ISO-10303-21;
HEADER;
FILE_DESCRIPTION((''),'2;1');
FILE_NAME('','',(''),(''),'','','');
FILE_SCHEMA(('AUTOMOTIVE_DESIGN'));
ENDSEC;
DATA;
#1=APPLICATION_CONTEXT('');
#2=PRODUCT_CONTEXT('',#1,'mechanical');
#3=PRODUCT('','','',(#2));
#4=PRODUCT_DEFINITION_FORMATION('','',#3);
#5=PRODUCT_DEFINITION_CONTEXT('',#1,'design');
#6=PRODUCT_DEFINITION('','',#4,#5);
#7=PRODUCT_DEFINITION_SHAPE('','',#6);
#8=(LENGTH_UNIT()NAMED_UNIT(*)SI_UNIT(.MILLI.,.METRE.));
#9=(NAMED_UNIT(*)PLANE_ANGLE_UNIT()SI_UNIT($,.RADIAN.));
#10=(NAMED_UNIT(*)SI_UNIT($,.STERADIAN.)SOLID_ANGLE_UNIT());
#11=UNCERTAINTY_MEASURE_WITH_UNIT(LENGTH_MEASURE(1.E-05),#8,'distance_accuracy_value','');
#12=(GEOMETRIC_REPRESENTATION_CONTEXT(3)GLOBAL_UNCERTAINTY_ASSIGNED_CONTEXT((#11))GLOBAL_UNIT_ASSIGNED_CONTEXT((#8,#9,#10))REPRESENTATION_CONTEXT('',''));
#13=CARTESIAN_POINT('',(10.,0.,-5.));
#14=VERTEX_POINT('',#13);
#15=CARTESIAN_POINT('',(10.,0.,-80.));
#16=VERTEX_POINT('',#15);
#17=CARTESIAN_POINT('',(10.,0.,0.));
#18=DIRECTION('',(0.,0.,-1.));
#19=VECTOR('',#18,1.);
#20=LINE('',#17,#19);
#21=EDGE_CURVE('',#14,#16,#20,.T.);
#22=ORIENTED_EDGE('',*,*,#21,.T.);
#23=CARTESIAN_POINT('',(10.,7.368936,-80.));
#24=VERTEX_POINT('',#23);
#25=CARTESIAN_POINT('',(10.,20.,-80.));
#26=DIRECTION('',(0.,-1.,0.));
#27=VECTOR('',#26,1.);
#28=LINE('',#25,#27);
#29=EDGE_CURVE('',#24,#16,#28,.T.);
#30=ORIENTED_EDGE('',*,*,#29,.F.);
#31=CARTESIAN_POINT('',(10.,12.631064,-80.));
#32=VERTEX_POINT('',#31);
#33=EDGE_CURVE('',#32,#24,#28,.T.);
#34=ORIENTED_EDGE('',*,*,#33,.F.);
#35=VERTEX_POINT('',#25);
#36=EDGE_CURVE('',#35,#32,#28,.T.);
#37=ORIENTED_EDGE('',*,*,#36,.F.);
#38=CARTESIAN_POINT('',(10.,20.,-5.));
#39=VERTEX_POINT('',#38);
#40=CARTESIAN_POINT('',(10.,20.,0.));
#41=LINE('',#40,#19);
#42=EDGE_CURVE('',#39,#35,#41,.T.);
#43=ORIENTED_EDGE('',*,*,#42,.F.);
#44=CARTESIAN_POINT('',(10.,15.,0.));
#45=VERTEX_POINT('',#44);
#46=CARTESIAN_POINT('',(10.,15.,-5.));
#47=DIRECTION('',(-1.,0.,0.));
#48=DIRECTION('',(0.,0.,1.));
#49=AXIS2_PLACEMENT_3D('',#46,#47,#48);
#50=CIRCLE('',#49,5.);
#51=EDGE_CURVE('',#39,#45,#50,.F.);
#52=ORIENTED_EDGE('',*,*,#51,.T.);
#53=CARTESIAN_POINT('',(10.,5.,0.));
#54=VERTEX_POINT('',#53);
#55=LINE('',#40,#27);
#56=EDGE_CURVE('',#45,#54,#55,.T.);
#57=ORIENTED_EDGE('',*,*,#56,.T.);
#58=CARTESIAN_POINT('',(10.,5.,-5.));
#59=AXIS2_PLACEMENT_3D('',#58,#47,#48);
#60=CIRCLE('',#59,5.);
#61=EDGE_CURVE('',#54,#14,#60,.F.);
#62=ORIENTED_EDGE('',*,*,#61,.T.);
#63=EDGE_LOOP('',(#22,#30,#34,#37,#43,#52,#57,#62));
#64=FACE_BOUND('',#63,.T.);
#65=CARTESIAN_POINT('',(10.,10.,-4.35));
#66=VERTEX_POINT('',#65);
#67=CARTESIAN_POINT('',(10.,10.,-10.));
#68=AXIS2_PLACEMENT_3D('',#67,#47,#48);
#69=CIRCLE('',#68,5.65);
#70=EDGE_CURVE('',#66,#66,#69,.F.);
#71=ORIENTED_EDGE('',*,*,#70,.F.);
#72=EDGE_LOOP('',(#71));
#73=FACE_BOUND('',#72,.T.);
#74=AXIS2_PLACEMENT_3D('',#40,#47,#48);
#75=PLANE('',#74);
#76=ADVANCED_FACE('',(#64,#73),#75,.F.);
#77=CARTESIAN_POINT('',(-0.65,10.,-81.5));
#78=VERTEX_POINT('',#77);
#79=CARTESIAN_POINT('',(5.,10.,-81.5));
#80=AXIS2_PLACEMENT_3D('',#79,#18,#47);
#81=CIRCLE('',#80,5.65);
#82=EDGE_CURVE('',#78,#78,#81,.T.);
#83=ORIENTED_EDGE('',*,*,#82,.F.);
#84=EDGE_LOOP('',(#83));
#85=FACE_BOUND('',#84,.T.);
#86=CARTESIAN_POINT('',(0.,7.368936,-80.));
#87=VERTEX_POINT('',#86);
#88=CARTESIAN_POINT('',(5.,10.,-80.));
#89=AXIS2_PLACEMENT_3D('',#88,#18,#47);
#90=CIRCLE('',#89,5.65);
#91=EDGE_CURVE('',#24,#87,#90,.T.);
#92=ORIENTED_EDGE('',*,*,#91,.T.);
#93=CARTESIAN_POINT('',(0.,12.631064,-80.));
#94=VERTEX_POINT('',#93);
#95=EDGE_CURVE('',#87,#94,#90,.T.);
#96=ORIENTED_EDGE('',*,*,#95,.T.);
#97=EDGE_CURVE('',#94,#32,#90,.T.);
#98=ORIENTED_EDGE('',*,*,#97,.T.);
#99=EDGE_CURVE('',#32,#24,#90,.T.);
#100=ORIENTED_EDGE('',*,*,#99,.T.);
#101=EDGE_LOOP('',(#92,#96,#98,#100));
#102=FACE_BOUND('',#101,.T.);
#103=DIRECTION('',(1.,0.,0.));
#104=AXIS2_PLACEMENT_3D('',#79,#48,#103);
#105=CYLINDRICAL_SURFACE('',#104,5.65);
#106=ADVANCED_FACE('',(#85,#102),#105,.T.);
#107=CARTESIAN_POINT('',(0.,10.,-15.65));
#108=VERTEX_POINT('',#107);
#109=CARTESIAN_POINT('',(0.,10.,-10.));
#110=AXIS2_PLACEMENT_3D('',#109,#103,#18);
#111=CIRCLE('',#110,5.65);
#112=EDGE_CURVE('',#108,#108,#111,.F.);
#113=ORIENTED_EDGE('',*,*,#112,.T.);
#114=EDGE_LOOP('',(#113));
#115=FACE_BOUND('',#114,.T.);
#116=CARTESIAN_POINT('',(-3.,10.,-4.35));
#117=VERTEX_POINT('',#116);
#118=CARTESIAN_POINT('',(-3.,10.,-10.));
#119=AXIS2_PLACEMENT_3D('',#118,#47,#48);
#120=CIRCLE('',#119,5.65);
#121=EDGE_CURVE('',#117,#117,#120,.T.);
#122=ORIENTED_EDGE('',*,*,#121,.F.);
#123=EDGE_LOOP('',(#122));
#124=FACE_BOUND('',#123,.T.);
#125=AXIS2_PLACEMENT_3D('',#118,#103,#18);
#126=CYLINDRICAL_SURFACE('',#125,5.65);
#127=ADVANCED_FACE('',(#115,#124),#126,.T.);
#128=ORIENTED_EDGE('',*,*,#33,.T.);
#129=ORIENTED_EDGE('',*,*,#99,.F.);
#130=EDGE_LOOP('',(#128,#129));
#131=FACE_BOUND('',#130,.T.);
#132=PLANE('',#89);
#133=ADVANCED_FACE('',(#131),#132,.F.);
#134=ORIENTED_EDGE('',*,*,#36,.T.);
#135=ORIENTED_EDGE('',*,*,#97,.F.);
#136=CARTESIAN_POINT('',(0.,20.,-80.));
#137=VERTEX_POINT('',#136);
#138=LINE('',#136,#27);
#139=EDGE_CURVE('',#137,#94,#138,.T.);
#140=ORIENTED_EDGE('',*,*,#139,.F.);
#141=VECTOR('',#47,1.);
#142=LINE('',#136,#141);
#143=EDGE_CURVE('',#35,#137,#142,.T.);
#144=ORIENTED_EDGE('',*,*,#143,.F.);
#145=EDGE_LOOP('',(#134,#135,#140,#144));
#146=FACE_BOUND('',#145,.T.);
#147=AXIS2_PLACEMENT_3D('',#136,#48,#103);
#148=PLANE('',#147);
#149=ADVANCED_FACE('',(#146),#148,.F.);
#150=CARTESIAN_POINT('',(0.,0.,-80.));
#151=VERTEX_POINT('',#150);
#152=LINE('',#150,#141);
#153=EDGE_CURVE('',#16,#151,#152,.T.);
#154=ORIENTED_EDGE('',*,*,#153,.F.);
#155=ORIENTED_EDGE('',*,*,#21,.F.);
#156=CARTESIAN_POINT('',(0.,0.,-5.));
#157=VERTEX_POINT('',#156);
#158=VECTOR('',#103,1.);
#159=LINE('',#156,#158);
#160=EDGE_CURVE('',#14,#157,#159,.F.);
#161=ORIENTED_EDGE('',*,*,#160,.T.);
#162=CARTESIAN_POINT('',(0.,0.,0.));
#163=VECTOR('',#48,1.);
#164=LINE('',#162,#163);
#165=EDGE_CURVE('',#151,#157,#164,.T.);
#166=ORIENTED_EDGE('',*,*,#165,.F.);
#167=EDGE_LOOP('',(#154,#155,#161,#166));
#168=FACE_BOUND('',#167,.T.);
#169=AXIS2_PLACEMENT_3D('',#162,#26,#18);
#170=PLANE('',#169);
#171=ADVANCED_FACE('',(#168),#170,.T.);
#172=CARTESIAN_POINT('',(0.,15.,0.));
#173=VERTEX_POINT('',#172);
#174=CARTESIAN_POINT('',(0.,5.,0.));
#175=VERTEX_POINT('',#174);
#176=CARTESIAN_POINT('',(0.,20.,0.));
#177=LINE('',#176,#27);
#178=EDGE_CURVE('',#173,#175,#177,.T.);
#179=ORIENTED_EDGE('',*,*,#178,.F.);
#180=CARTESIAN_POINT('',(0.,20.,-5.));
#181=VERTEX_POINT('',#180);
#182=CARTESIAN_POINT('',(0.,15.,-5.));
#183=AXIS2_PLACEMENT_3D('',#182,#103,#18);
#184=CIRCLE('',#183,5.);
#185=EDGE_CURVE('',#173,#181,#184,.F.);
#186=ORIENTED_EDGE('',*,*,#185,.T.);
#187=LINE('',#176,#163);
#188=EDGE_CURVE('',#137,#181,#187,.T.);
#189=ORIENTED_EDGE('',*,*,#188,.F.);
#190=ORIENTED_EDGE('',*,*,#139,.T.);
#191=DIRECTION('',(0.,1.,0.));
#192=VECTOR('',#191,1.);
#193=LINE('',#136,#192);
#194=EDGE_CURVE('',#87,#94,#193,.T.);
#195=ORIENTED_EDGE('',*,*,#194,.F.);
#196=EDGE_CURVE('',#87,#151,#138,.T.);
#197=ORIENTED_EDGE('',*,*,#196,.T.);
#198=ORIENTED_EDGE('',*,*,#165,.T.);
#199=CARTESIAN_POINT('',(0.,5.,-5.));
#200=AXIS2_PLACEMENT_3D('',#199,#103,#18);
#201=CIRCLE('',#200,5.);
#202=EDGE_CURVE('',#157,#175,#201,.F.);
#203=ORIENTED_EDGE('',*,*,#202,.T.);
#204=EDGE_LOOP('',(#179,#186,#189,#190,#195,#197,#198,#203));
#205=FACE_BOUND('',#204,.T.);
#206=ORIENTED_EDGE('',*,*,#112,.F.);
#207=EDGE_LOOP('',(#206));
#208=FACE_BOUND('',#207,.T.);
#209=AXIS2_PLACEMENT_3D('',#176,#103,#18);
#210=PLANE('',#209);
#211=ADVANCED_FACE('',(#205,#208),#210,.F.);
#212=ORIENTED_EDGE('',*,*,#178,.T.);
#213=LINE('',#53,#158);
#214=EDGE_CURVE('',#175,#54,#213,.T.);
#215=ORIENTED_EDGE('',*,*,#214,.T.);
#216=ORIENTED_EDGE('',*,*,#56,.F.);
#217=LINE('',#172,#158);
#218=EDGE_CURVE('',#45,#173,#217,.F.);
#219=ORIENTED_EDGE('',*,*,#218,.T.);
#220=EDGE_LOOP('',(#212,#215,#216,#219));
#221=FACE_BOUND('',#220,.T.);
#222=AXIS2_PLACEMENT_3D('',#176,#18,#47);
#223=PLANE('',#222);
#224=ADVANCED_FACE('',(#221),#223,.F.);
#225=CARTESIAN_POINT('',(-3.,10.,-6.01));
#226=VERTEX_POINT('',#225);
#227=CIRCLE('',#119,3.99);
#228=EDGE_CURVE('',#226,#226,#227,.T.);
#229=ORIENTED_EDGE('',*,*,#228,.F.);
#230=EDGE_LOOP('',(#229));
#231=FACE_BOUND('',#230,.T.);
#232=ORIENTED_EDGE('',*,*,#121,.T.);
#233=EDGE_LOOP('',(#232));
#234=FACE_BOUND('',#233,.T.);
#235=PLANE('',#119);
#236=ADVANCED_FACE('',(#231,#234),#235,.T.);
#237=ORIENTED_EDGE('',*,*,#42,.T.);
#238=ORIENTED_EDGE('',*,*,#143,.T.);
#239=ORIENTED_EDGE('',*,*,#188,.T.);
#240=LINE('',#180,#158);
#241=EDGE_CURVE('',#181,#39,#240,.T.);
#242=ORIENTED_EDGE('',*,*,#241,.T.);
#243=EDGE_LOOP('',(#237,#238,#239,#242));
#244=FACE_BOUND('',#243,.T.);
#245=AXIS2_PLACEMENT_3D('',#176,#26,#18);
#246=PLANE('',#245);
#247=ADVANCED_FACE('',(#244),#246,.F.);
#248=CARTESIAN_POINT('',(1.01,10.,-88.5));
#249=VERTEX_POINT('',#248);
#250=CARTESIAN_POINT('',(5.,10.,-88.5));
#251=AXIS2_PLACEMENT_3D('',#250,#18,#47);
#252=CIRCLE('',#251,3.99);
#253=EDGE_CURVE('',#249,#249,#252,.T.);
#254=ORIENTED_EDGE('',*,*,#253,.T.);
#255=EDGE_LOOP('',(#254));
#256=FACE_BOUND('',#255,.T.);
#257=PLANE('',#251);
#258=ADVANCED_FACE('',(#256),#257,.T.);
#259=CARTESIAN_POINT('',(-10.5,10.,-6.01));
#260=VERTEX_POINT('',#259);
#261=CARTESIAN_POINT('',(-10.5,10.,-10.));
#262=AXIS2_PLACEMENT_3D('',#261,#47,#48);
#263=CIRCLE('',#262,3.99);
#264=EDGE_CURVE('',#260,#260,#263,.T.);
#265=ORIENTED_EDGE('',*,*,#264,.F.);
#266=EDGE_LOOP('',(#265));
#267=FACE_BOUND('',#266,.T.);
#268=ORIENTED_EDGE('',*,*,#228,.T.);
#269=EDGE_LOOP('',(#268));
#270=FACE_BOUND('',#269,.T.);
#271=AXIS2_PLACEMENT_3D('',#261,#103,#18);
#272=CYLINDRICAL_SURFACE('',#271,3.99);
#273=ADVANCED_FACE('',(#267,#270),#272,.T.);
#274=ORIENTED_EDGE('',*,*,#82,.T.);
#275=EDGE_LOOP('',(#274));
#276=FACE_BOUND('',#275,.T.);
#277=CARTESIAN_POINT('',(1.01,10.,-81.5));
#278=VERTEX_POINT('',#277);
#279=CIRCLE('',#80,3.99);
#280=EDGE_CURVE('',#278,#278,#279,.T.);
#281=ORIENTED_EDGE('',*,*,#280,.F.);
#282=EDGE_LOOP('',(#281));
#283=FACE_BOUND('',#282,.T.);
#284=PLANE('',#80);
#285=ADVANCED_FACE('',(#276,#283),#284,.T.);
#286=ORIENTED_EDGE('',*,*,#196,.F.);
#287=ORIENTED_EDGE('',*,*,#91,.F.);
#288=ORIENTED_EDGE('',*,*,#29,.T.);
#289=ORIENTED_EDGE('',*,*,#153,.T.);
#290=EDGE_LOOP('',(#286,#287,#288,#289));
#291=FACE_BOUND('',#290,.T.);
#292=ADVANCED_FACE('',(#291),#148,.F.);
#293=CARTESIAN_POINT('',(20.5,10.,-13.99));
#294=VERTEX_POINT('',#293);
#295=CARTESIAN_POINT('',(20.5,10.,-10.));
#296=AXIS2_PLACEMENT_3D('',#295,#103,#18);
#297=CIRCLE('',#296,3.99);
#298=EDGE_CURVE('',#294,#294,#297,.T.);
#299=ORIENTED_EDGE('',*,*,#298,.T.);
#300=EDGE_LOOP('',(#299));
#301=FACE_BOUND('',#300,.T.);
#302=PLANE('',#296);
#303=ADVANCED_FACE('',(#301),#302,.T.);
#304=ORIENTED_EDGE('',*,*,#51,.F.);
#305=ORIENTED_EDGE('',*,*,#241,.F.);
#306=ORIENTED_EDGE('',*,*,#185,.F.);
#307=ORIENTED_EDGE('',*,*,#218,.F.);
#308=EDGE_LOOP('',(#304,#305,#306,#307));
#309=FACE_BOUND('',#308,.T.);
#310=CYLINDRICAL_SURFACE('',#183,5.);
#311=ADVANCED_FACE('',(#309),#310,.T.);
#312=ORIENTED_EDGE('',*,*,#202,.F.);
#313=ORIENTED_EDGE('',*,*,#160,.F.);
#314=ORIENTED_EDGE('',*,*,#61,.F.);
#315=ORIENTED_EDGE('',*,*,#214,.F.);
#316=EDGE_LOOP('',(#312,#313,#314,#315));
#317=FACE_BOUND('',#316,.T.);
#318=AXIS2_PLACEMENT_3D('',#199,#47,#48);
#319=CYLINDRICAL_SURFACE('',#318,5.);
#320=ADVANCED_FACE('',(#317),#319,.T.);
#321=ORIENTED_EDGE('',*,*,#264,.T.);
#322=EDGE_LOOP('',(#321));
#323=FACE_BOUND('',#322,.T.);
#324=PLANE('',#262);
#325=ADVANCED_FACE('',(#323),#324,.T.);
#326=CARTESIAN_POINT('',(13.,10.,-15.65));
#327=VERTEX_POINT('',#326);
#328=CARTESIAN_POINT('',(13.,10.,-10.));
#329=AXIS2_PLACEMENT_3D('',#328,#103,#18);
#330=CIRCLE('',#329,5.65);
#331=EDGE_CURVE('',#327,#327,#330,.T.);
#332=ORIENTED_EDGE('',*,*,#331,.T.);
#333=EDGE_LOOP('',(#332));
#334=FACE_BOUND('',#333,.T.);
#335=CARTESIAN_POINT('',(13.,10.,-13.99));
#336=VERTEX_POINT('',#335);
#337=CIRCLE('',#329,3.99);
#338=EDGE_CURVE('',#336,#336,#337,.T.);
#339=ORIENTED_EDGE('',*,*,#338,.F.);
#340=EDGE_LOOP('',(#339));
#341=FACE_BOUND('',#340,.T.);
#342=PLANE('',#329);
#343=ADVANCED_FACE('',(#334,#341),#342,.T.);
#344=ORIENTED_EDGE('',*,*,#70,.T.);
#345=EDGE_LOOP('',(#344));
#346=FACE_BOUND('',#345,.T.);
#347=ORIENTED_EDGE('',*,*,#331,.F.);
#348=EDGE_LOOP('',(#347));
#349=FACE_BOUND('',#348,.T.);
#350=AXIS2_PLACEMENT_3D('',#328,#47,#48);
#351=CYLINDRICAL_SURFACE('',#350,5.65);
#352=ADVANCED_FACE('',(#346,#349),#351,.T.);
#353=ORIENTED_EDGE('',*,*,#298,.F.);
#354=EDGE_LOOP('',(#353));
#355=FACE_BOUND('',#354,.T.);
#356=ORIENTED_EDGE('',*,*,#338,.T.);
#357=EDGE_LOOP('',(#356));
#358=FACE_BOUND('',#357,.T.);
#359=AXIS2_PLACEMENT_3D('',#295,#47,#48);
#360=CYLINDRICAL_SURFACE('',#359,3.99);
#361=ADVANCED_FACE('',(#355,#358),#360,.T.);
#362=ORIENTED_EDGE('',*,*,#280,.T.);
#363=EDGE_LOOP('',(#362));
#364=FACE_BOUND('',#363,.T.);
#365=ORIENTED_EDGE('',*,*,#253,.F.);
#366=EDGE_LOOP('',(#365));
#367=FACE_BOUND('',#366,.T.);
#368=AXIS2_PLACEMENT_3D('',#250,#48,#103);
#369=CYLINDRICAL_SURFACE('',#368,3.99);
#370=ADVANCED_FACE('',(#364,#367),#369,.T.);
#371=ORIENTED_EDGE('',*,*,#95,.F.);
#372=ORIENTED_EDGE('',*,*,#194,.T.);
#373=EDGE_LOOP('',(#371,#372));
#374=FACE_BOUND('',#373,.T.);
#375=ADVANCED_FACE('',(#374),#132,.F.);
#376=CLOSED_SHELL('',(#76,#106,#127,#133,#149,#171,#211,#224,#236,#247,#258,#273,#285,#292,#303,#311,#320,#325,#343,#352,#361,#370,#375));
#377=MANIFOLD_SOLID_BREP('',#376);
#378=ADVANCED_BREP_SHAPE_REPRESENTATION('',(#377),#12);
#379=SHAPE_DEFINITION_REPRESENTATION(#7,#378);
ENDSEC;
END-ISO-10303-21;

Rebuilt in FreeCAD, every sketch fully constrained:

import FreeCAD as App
import Part
import Sketcher

V = App.Vector
Q = App.Units.Quantity


def edges_at(feature, points):
    """Names of the edges that pass closest to the given points."""
    edges = feature.Shape.Edges
    near = lambda p: min(range(len(edges)), key=lambda i: edges[i].distToShape(Part.Vertex(*p))[0])
    return sorted({f"Edge{near(p) + 1}" for p in points})


def add_polygon(sketch, points):
    """Adds a closed chain of lines whose ends are joined by coincident constraints."""
    first, n = sketch.GeometryCount, len(points)
    for a, b in zip(points, points[1:] + points[:1]):
        sketch.addGeometry(Part.LineSegment(App.Vector(*a, 0), App.Vector(*b, 0)), False)
    for i in range(n):
        sketch.addConstraint(Sketcher.Constraint("Coincident", first + i, 2, first + (i + 1) % n, 1))

doc = App.newDocument("Part")
body = doc.addObject("PartDesign::Body", "Body")

sketch1 = body.newObject("Sketcher::SketchObject", "Sketch")
sketch1.AttachmentSupport = (doc.getObject("XZ_Plane"), [""])
sketch1.MapMode = "FlatFace"
add_polygon(sketch1, [(0, -80), (0, 0), (10, 0), (10, -80)])
sketch1.addConstraint(Sketcher.Constraint("Vertical", 0))
sketch1.addConstraint(Sketcher.Constraint("Horizontal", 1))
sketch1.addConstraint(Sketcher.Constraint("Vertical", 2))
sketch1.addConstraint(Sketcher.Constraint("Horizontal", 3))
sketch1.addConstraint(Sketcher.Constraint("Coincident", 0, 2, -1, 1))
sketch1.addConstraint(Sketcher.Constraint("DistanceX", 1, 1, 1, 2, Q("10 mm")))
sketch1.addConstraint(Sketcher.Constraint("DistanceY", 0, 1, 0, 2, Q("80 mm")))
pad1 = body.newObject("PartDesign::Pad", "Pad")
pad1.Profile = sketch1
pad1.Length = 20
pad1.Reversed = True
doc.recompute()

fillet = body.newObject("PartDesign::Fillet", "Fillet")
fillet.Base = (pad1, edges_at(pad1, [(5, 0, 0), (5, 20, 0)]))
fillet.Radius = 5

sketch2 = body.newObject("Sketcher::SketchObject", "Sketch001")
sketch2.AttachmentSupport = (doc.getObject("XY_Plane"), [""])
sketch2.MapMode = "FlatFace"
sketch2.AttachmentOffset = App.Placement(V(0, 0, -80), App.Rotation())
sketch2.addGeometry(Part.Circle(V(5, 10, 0), V(0, 0, 1), 4), False)
sketch2.addConstraint(Sketcher.Constraint("Diameter", 0, Q("7.98 mm")))
sketch2.addConstraint(Sketcher.Constraint("DistanceX", -1, 1, 0, 3, Q("5 mm")))
sketch2.addConstraint(Sketcher.Constraint("DistanceY", -1, 1, 0, 3, Q("10 mm")))
pad2 = body.newObject("PartDesign::Pad", "Pad001")
pad2.Profile = sketch2
pad2.Length = 8.5
pad2.Reversed = True

sketch3 = body.newObject("Sketcher::SketchObject", "Sketch002")
sketch3.AttachmentSupport = (doc.getObject("XY_Plane"), [""])
sketch3.MapMode = "FlatFace"
sketch3.AttachmentOffset = App.Placement(V(0, 0, -80), App.Rotation())
sketch3.addGeometry(Part.Circle(V(5, 10, 0), V(0, 0, 1), 6), False)
sketch3.addConstraint(Sketcher.Constraint("Diameter", 0, Q("11.3 mm")))
sketch3.addConstraint(Sketcher.Constraint("DistanceX", -1, 1, 0, 3, Q("5 mm")))
sketch3.addConstraint(Sketcher.Constraint("DistanceY", -1, 1, 0, 3, Q("10 mm")))
pad3 = body.newObject("PartDesign::Pad", "Pad002")
pad3.Profile = sketch3
pad3.Length = 1.5
pad3.Reversed = True

sketch4 = body.newObject("Sketcher::SketchObject", "Sketch003")
sketch4.AttachmentSupport = (doc.getObject("YZ_Plane"), [""])
sketch4.MapMode = "FlatFace"
sketch4.AttachmentOffset = App.Placement(V(0, 0, 10), App.Rotation())
sketch4.addGeometry(Part.Circle(V(10, -10, 0), V(0, 0, 1), 6), False)
sketch4.addConstraint(Sketcher.Constraint("Diameter", 0, Q("11.3 mm")))
sketch4.addConstraint(Sketcher.Constraint("DistanceX", -1, 1, 0, 3, Q("10 mm")))
sketch4.addConstraint(Sketcher.Constraint("DistanceY", 0, 3, -1, 1, Q("10 mm")))
pad4 = body.newObject("PartDesign::Pad", "Pad003")
pad4.Profile = sketch4
pad4.Length = 3

sketch5 = body.newObject("Sketcher::SketchObject", "Sketch004")
sketch5.AttachmentSupport = (doc.getObject("YZ_Plane"), [""])
sketch5.MapMode = "FlatFace"
sketch5.AttachmentOffset = App.Placement(V(0, 0, 13), App.Rotation())
sketch5.addGeometry(Part.Circle(V(10, -10, 0), V(0, 0, 1), 4), False)
sketch5.addConstraint(Sketcher.Constraint("Diameter", 0, Q("7.98 mm")))
sketch5.addConstraint(Sketcher.Constraint("DistanceX", -1, 1, 0, 3, Q("10 mm")))
sketch5.addConstraint(Sketcher.Constraint("DistanceY", 0, 3, -1, 1, Q("10 mm")))
pad5 = body.newObject("PartDesign::Pad", "Pad004")
pad5.Profile = sketch5
pad5.Length = 7.5

sketch6 = body.newObject("Sketcher::SketchObject", "Sketch005")
sketch6.AttachmentSupport = (doc.getObject("YZ_Plane"), [""])
sketch6.MapMode = "FlatFace"
sketch6.AttachmentOffset = App.Placement(V(0, 0, -3), App.Rotation())
sketch6.addGeometry(Part.Circle(V(10, -10, 0), V(0, 0, 1), 6), False)
sketch6.addConstraint(Sketcher.Constraint("Diameter", 0, Q("11.3 mm")))
sketch6.addConstraint(Sketcher.Constraint("DistanceX", -1, 1, 0, 3, Q("10 mm")))
sketch6.addConstraint(Sketcher.Constraint("DistanceY", 0, 3, -1, 1, Q("10 mm")))
pad6 = body.newObject("PartDesign::Pad", "Pad005")
pad6.Profile = sketch6
pad6.Length = 3

sketch7 = body.newObject("Sketcher::SketchObject", "Sketch006")
sketch7.AttachmentSupport = (doc.getObject("YZ_Plane"), [""])
sketch7.MapMode = "FlatFace"
sketch7.AttachmentOffset = App.Placement(V(0, 0, -10.5), App.Rotation())
sketch7.addGeometry(Part.Circle(V(10, -10, 0), V(0, 0, 1), 4), False)
sketch7.addConstraint(Sketcher.Constraint("Diameter", 0, Q("7.98 mm")))
sketch7.addConstraint(Sketcher.Constraint("DistanceX", -1, 1, 0, 3, Q("10 mm")))
sketch7.addConstraint(Sketcher.Constraint("DistanceY", 0, 3, -1, 1, Q("10 mm")))
pad7 = body.newObject("PartDesign::Pad", "Pad006")
pad7.Profile = sketch7
pad7.Length = 7.5

doc.recompute()
